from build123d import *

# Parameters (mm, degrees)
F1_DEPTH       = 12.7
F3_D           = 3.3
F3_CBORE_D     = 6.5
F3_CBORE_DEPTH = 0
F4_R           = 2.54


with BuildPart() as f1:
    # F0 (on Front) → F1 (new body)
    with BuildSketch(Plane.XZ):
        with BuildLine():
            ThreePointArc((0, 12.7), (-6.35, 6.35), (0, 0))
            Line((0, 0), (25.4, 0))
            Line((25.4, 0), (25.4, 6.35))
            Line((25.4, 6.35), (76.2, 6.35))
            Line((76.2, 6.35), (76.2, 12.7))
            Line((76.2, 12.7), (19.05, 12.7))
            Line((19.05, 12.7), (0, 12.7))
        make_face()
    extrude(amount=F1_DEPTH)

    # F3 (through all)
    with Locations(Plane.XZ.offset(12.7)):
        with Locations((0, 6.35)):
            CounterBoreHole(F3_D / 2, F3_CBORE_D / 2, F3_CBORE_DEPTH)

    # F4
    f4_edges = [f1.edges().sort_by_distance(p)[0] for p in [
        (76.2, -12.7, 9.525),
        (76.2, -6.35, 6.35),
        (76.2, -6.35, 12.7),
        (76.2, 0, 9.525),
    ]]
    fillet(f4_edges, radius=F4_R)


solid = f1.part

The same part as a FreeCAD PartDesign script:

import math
import FreeCAD as App
import Part
import Sketcher
Q = App.Units.Quantity


def edges_at(feature, points):
    """Names of the edges that pass closest to the given points."""
    edges = feature.Shape.Edges
    near = lambda p: min(range(len(edges)), key=lambda i: edges[i].distToShape(Part.Vertex(*p))[0])
    return sorted({f"Edge{near(p) + 1}" for p in points})

doc = App.newDocument("Part")
body = doc.addObject("PartDesign::Body", "Body")

# Sketch on XZ plane
sketch1 = body.newObject("Sketcher::SketchObject", "Sketch")
sketch1.AttachmentSupport = (doc.getObject("XZ_Plane"), [""])
sketch1.MapMode = "FlatFace"
sketch1.addGeometry([
    Part.ArcOfCircle(Part.Circle(App.Vector(0, 6.35, 0), App.Vector(0, 0, 1), 6.35), math.radians(90), math.radians(270)),  # 0
    Part.LineSegment(App.Vector(0, 0, 0), App.Vector(25.4, 0, 0)),  # 1
    Part.LineSegment(App.Vector(25.4, 0, 0), App.Vector(25.4, 6.35, 0)),  # 2
    Part.LineSegment(App.Vector(25.4, 6.35, 0), App.Vector(76.2, 6.35, 0)),  # 3
    Part.LineSegment(App.Vector(76.2, 6.35, 0), App.Vector(76.2, 12.7, 0)),  # 4
    Part.LineSegment(App.Vector(76.2, 12.7, 0), App.Vector(0, 12.7, 0)),  # 5
], False)
sketch1.addConstraint([
    Sketcher.Constraint("Tangent", 0, 2, 1, 1),
    Sketcher.Constraint("Coincident", 1, 2, 2, 1),
    Sketcher.Constraint("Coincident", 2, 2, 3, 1),
    Sketcher.Constraint("Coincident", 3, 2, 4, 1),
    Sketcher.Constraint("Coincident", 4, 2, 5, 1),
    Sketcher.Constraint("Tangent", 5, 2, 0, 1),
    Sketcher.Constraint("Horizontal", 1),
    Sketcher.Constraint("Vertical", 2),
    Sketcher.Constraint("Horizontal", 3),
    Sketcher.Constraint("Vertical", 4),
    Sketcher.Constraint("Horizontal", 5),
    Sketcher.Constraint("Coincident", 0, 2, -1, 1),
    Sketcher.Constraint("Horizontal", 0, 3, 2, 2),
    Sketcher.Constraint("DistanceX", 1, 1, 1, 2, Q("1 in")),
    Sketcher.Constraint("DistanceX", 3, 1, 3, 2, Q("2 in")),
    Sketcher.Constraint("Radius", 0, Q("0.25 in")),
])
pad1 = body.newObject("PartDesign::Pad", "Pad")
pad1.Profile = sketch1
pad1.Length = Q("0.5 in")

# Sketch on XZ plane
sketch2 = body.newObject("Sketcher::SketchObject", "Sketch001")
sketch2.AttachmentSupport = (doc.getObject("XZ_Plane"), [""])
sketch2.MapMode = "FlatFace"
sketch2.AttachmentOffset = App.Placement(App.Vector(0, 0, 0.5 * 25.4), App.Rotation())
sketch2.addGeometry(Part.Circle(App.Vector(0, 6.35, 0), App.Vector(0, 0, 1), 1.65), False)
sketch2.addConstraint([
    Sketcher.Constraint("PointOnObject", 0, 3, -2),
    Sketcher.Constraint("Diameter", 0, Q("3.3 mm")),
    Sketcher.Constraint("DistanceY", -1, 1, 0, 3, Q("0.25 in")),
])
doc.recompute()
hole = body.newObject("PartDesign::Hole", "Hole")
hole.Profile = sketch2
hole.ThreadType = "None"
hole.Diameter = 3.3
hole.DepthType = "ThroughAll"
hole.HoleCutType = "Counterbore"
hole.HoleCutDiameter = 6.5
hole.HoleCutDepth = Q("0 in")
doc.recompute()

fillet = body.newObject("PartDesign::Fillet", "Fillet")
fillet.Base = (hole, edges_at(hole, [
    (76.2, -12.7, 9.525),
    (76.2, -6.35, 6.35),
    (76.2, -6.35, 12.7),
    (76.2, 0, 9.525),
]))
fillet.Radius = Q("0.1 in")

doc.recompute()
